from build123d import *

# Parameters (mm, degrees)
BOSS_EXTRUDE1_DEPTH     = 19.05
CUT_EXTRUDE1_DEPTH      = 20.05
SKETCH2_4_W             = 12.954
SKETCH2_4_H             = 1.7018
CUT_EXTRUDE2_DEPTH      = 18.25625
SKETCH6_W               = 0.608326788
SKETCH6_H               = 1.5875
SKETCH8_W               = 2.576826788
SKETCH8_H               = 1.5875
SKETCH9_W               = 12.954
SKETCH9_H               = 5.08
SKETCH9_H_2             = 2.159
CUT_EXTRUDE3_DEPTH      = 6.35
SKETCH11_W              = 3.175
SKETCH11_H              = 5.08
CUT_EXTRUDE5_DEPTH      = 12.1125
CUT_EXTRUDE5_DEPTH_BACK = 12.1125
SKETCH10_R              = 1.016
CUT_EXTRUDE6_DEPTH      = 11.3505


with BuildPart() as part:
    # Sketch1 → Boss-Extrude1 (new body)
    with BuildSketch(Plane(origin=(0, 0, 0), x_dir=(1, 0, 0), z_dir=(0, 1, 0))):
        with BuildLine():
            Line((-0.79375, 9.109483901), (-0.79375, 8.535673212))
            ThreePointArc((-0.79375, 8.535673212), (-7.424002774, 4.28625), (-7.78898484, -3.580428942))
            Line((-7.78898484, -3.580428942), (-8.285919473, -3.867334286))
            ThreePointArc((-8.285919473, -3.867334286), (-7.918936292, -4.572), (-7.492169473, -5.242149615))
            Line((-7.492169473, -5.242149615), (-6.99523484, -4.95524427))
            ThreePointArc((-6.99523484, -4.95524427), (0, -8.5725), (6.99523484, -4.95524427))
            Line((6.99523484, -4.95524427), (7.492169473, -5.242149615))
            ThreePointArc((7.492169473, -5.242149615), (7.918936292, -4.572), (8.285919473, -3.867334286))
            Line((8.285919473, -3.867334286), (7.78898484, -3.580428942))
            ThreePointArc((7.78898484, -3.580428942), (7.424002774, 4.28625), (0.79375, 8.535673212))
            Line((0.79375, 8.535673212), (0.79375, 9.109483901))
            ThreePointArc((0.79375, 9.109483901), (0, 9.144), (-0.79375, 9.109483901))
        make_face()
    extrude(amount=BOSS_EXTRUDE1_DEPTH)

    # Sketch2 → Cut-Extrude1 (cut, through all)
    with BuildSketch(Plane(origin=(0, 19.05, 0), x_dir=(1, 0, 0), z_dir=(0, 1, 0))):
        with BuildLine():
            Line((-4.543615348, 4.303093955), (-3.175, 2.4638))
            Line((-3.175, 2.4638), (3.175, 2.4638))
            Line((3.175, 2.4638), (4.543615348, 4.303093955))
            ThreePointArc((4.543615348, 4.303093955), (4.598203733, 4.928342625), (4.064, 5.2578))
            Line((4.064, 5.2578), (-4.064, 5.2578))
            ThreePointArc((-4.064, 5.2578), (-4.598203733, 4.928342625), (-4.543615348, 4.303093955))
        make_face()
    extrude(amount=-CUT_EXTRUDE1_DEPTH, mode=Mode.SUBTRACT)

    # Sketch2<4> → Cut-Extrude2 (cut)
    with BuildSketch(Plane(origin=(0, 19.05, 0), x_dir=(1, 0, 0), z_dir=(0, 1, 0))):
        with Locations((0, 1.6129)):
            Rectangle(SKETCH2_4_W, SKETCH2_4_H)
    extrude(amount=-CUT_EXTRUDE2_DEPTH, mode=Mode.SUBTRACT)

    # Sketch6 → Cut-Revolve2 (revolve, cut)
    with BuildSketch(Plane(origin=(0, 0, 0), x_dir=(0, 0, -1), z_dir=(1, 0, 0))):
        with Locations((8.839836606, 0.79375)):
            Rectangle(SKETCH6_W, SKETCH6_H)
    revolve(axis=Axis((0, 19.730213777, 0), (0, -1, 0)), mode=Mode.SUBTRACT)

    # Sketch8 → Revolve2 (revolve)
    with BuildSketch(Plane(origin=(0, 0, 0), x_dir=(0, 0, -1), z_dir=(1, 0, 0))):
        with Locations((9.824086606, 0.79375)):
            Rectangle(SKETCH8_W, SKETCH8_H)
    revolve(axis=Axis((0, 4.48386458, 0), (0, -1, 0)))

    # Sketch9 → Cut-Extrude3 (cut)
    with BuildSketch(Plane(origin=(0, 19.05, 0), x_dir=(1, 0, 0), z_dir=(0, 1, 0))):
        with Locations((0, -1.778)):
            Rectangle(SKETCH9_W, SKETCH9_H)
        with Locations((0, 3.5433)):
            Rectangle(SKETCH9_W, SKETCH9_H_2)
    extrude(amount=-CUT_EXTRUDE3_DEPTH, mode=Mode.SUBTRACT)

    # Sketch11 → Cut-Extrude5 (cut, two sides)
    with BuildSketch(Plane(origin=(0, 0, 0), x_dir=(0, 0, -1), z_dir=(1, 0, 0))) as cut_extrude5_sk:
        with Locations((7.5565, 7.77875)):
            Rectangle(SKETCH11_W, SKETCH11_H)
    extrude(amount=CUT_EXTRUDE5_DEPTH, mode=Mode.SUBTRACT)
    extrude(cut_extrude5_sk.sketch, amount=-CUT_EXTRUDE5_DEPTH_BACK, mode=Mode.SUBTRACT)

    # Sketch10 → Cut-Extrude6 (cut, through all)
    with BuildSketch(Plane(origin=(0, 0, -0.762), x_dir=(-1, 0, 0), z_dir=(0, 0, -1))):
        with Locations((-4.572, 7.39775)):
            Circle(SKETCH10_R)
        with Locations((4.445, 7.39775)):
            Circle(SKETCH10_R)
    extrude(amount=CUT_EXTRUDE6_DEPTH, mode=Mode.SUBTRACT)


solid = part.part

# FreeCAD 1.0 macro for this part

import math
import FreeCAD as App
import Part
import Sketcher

V = App.Vector
Q = App.Units.Quantity

doc = App.newDocument("Part")
body = doc.addObject("PartDesign::Body", "Body")

# Sketch on XZ plane
sketch1 = body.newObject("Sketcher::SketchObject", "Sketch")
sketch1.AttachmentSupport = (doc.getObject("XZ_Plane"), [""])
sketch1.MapMode = "FlatFace"
sketch1.addGeometry([
    Part.LineSegment(V(-0.79375, -9.109484, 0), V(-0.79375, -8.535673, 0)),  # 0
    Part.ArcOfCircle(Part.Circle(V(0, 0, 0), V(0, 0, 1), 8.5725), math.radians(155.312775), math.radians(264.687225)),  # 1
    Part.LineSegment(V(-7.788985, 3.580429, 0), V(-8.285919, 3.867334, 0)),  # 2
    Part.ArcOfCircle(Part.Circle(V(0, 0, 0), V(0, 0, 1), 9.144), math.radians(145.020141), math.radians(154.979859)),  # 3
    Part.LineSegment(V(-7.492169, 5.24215, 0), V(-6.995235, 4.955244, 0)),  # 4
    Part.ArcOfCircle(Part.Circle(V(0, 0, 0), V(0, 0, 1), 8.5725), math.radians(35.312775), math.radians(144.687225)),  # 5
    Part.LineSegment(V(6.995235, 4.955244, 0), V(7.492169, 5.24215, 0)),  # 6
    Part.ArcOfCircle(Part.Circle(V(0, 0, 0), V(0, 0, 1), 9.144), math.radians(25.020141), math.radians(34.979859)),  # 7
    Part.LineSegment(V(8.285919, 3.867334, 0), V(7.788985, 3.580429, 0)),  # 8
    Part.ArcOfCircle(Part.Circle(V(0, 0, 0), V(0, 0, 1), 8.5725), math.radians(-84.687225), math.radians(24.687225)),  # 9
    Part.LineSegment(V(0.79375, -8.535673, 0), V(0.79375, -9.109484, 0)),  # 10
    Part.ArcOfCircle(Part.Circle(V(0, 0, 0), V(0, 0, 1), 9.144), math.radians(-94.979859), math.radians(-85.020141)),  # 11
], False)
sketch1.addConstraint([
    Sketcher.Constraint("Coincident", 0, 2, 1, 2),
    Sketcher.Constraint("Coincident", 1, 1, 2, 1),
    Sketcher.Constraint("Coincident", 2, 2, 3, 2),
    Sketcher.Constraint("Coincident", 3, 1, 4, 1),
    Sketcher.Constraint("Coincident", 4, 2, 5, 2),
    Sketcher.Constraint("Coincident", 5, 1, 6, 1),
    Sketcher.Constraint("Coincident", 6, 2, 7, 2),
    Sketcher.Constraint("Coincident", 7, 1, 8, 1),
    Sketcher.Constraint("Coincident", 8, 2, 9, 2),
    Sketcher.Constraint("Coincident", 9, 1, 10, 1),
    Sketcher.Constraint("Coincident", 10, 2, 11, 2),
    Sketcher.Constraint("Coincident", 11, 1, 0, 1),
    Sketcher.Constraint("Vertical", 0),
    Sketcher.Constraint("Vertical", 10),
    Sketcher.Constraint("Coincident", 1, 3, -1, 1),
    Sketcher.Constraint("Coincident", 3, 3, -1, 1),
    Sketcher.Constraint("Coincident", 5, 3, -1, 1),
    Sketcher.Constraint("Coincident", 7, 3, -1, 1),
    Sketcher.Constraint("Coincident", 9, 3, -1, 1),
    Sketcher.Constraint("Coincident", 11, 3, -1, 1),
    Sketcher.Constraint("Equal", 1, 5),
    Sketcher.Constraint("Equal", 3, 7),
    Sketcher.Constraint("Equal", 5, 9),
    Sketcher.Constraint("Equal", 7, 11),
    Sketcher.Constraint("Parallel", 2, 4),
    Sketcher.Constraint("Parallel", 6, 8),
    Sketcher.Constraint("Horizontal", 4, 2, 5, 1),
    Sketcher.Constraint("Horizontal", 3, 1, 6, 2),
    Sketcher.Constraint("Horizontal", 2, 2, 7, 1),
    Sketcher.Constraint("Horizontal", 0, 2, 9, 1),
    Sketcher.Constraint("Equal", 2, 4),
    Sketcher.Constraint("Radius", 3, Q("0.36 in")),
    Sketcher.Constraint("Angle", 2, Q("150 deg")),
    Sketcher.Constraint("Radius", 1, Q("0.3375 in")),
    Sketcher.Constraint("DistanceX", 0, 2, -1, 1, Q("0.03125 in")),
    Sketcher.Constraint("DistanceX", 2, 2, 3, 1, Q("0.03125 in")),
])
pad1 = body.newObject("PartDesign::Pad", "Pad")
pad1.Profile = sketch1
pad1.Length = Q("0.75 in")
pad1.Reversed = True

# Sketch on XZ plane
sketch2 = body.newObject("Sketcher::SketchObject", "Sketch001")
sketch2.AttachmentSupport = (doc.getObject("XZ_Plane"), [""])
sketch2.MapMode = "FlatFace"
sketch2.AttachmentOffset = App.Placement(V(0, 0, -0.75 * 25.4), App.Rotation())
sketch2.addGeometry([
    Part.LineSegment(V(-4.543615, -4.303094, 0), V(-3.175, -2.4638, 0)),  # 0
    Part.LineSegment(V(-3.175, -2.4638, 0), V(3.175, -2.4638, 0)),  # 1
    Part.LineSegment(V(3.175, -2.4638, 0), V(4.543615, -4.303094, 0)),  # 2
    Part.ArcOfCircle(Part.Circle(V(4.064, -4.659975, 0), V(0, 0, 1), 0.597825), math.radians(-90), math.radians(36.65287)),  # 3
    Part.LineSegment(V(4.064, -5.2578, 0), V(-4.064, -5.2578, 0)),  # 4
    Part.ArcOfCircle(Part.Circle(V(-4.064, -4.659975, 0), V(0, 0, 1), 0.597825), math.radians(143.34713), math.radians(270)),  # 5
], False)
sketch2.addConstraint([
    Sketcher.Constraint("Coincident", 0, 2, 1, 1),
    Sketcher.Constraint("Coincident", 1, 2, 2, 1),
    Sketcher.Constraint("Tangent", 2, 2, 3, 2),
    Sketcher.Constraint("Tangent", 3, 1, 4, 1),
    Sketcher.Constraint("Tangent", 4, 2, 5, 2),
    Sketcher.Constraint("Tangent", 5, 1, 0, 1),
    Sketcher.Constraint("Horizontal", 1),
    Sketcher.Constraint("Horizontal", 4),
    Sketcher.Constraint("Equal", 3, 5),
    Sketcher.Constraint("Symmetric", 2, 2, 5, 1, -2),
    Sketcher.Constraint("DistanceX", 1, 1, 1, 2, Q("0.25 in")),
    Sketcher.Constraint("DistanceX", 4, 2, 4, 1, Q("0.32 in")),
    Sketcher.Constraint("DistanceY", 3, 1, 1, 2, Q("0.11 in")),
    Sketcher.Constraint("DistanceY", 0, 2, -1, 1, Q("0.097 in")),
    Sketcher.Constraint("Radius", 3, Q("0.597825 mm")),
])
pocket1 = body.newObject("PartDesign::Pocket", "Pocket")
pocket1.Profile = sketch2
pocket1.Type = "ThroughAll"
pocket1.Reversed = True

# Sketch on XZ plane
sketch3 = body.newObject("Sketcher::SketchObject", "Sketch002")
sketch3.AttachmentSupport = (doc.getObject("XZ_Plane"), [""])
sketch3.MapMode = "FlatFace"
sketch3.AttachmentOffset = App.Placement(V(0, 0, -0.75 * 25.4), App.Rotation())
sketch3.addGeometry([
    Part.LineSegment(V(-6.477, -2.4638, 0), V(-6.477, -0.762, 0)),
    Part.LineSegment(V(-6.477, -0.762, 0), V(6.477, -0.762, 0)),
    Part.LineSegment(V(6.477, -0.762, 0), V(6.477, -2.4638, 0)),
    Part.LineSegment(V(6.477, -2.4638, 0), V(-6.477, -2.4638, 0)),
], False)
sketch3.addConstraint([
    Sketcher.Constraint("Coincident", 0, 2, 1, 1),
    Sketcher.Constraint("Coincident", 1, 2, 2, 1),
    Sketcher.Constraint("Coincident", 2, 2, 3, 1),
    Sketcher.Constraint("Coincident", 3, 2, 0, 1),
    Sketcher.Constraint("Vertical", 0),
    Sketcher.Constraint("Horizontal", 1),
    Sketcher.Constraint("Vertical", 2),
    Sketcher.Constraint("Horizontal", 3),
    Sketcher.Constraint("DistanceX", 1, 1, 1, 2, Q("0.51 in")),
    Sketcher.Constraint("DistanceY", 0, 1, 0, 2, Q("0.067 in")),
    Sketcher.Constraint("DistanceY", 0, 2, -1, 1, Q("0.03 in")),
    Sketcher.Constraint("DistanceX", 0, 2, -1, 1, Q("0.255 in")),
])
pocket2 = body.newObject("PartDesign::Pocket", "Pocket001")
pocket2.Profile = sketch3
pocket2.Length = Q("0.71875 in")
pocket2.Reversed = True

# Sketch on YZ plane
sketch4 = body.newObject("Sketcher::SketchObject", "Sketch003")
sketch4.AttachmentSupport = (doc.getObject("YZ_Plane"), [""])
sketch4.MapMode = "FlatFace"
sketch4.addGeometry([
    Part.LineSegment(V(1.5875, -8.535673, 0), V(0, -8.535673, 0)),
    Part.LineSegment(V(0, -8.535673, 0), V(0, -9.144, 0)),
    Part.LineSegment(V(0, -9.144, 0), V(1.5875, -9.144, 0)),
    Part.LineSegment(V(1.5875, -9.144, 0), V(1.5875, -8.535673, 0)),
], False)
sketch4.addConstraint([
    Sketcher.Constraint("Coincident", 0, 2, 1, 1),
    Sketcher.Constraint("Coincident", 1, 2, 2, 1),
    Sketcher.Constraint("Coincident", 2, 2, 3, 1),
    Sketcher.Constraint("Coincident", 3, 2, 0, 1),
    Sketcher.Constraint("Horizontal", 0),
    Sketcher.Constraint("Vertical", 1),
    Sketcher.Constraint("Horizontal", 2),
    Sketcher.Constraint("Vertical", 3),
    Sketcher.Constraint("PointOnObject", 0, 2, -2),
    Sketcher.Constraint("DistanceX", 0, 2, 0, 1, Q("0.0625 in")),
    Sketcher.Constraint("DistanceY", 1, 2, -1, 1, Q("0.36 in")),
    Sketcher.Constraint("DistanceY", 1, 2, 1, 1, Q("0.608327 mm")),
])
groove = body.newObject("PartDesign::Groove", "Groove")
groove.Profile = sketch4
groove.ReferenceAxis = (sketch4, ["H_Axis"])
groove.Angle = 360

# Sketch on YZ plane
sketch5 = body.newObject("Sketcher::SketchObject", "Sketch004")
sketch5.AttachmentSupport = (doc.getObject("YZ_Plane"), [""])
sketch5.MapMode = "FlatFace"
sketch5.addGeometry([
    Part.LineSegment(V(1.5875, -8.535673, 0), V(0, -8.535673, 0)),
    Part.LineSegment(V(0, -8.535673, 0), V(0, -11.1125, 0)),
    Part.LineSegment(V(0, -11.1125, 0), V(1.5875, -11.1125, 0)),
    Part.LineSegment(V(1.5875, -11.1125, 0), V(1.5875, -8.535673, 0)),
], False)
sketch5.addConstraint([
    Sketcher.Constraint("Coincident", 0, 2, 1, 1),
    Sketcher.Constraint("Coincident", 1, 2, 2, 1),
    Sketcher.Constraint("Coincident", 2, 2, 3, 1),
    Sketcher.Constraint("Coincident", 3, 2, 0, 1),
    Sketcher.Constraint("Horizontal", 0),
    Sketcher.Constraint("Vertical", 1),
    Sketcher.Constraint("Horizontal", 2),
    Sketcher.Constraint("Vertical", 3),
    Sketcher.Constraint("PointOnObject", 0, 2, -2),
    Sketcher.Constraint("DistanceX", 0, 2, 0, 1, Q("0.0625 in")),
    Sketcher.Constraint("DistanceY", 1, 2, -1, 1, Q("0.4375 in")),
    Sketcher.Constraint("DistanceY", 1, 2, 1, 1, Q("2.576827 mm")),
])
revolution = body.newObject("PartDesign::Revolution", "Revolution")
revolution.Profile = sketch5
revolution.ReferenceAxis = (sketch5, ["H_Axis"])
revolution.Angle = 360

# Sketch on XZ plane
sketch6 = body.newObject("Sketcher::SketchObject", "Sketch005")
sketch6.AttachmentSupport = (doc.getObject("XZ_Plane"), [""])
sketch6.MapMode = "FlatFace"
sketch6.AttachmentOffset = App.Placement(V(0, 0, -0.75 * 25.4), App.Rotation())
sketch6.addGeometry([
    Part.LineSegment(V(-6.477, -0.762, 0), V(-6.477, 4.318, 0)),  # 0
    Part.LineSegment(V(-6.477, 4.318, 0), V(6.477, 4.318, 0)),  # 1
    Part.LineSegment(V(6.477, 4.318, 0), V(6.477, -0.762, 0)),  # 2
    Part.LineSegment(V(6.477, -0.762, 0), V(-6.477, -0.762, 0)),  # 3
    Part.LineSegment(V(-6.477, -4.6228, 0), V(-6.477, -2.4638, 0)),  # 4
    Part.LineSegment(V(-6.477, -2.4638, 0), V(6.477, -2.4638, 0)),  # 5
    Part.LineSegment(V(6.477, -2.4638, 0), V(6.477, -4.6228, 0)),  # 6
    Part.LineSegment(V(6.477, -4.6228, 0), V(-6.477, -4.6228, 0)),  # 7
], False)
sketch6.addConstraint([
    Sketcher.Constraint("Coincident", 0, 2, 1, 1),
    Sketcher.Constraint("Coincident", 1, 2, 2, 1),
    Sketcher.Constraint("Coincident", 2, 2, 3, 1),
    Sketcher.Constraint("Coincident", 3, 2, 0, 1),
    Sketcher.Constraint("Coincident", 4, 2, 5, 1),
    Sketcher.Constraint("Coincident", 5, 2, 6, 1),
    Sketcher.Constraint("Coincident", 6, 2, 7, 1),
    Sketcher.Constraint("Coincident", 7, 2, 4, 1),
    Sketcher.Constraint("Vertical", 0),
    Sketcher.Constraint("Horizontal", 1),
    Sketcher.Constraint("Vertical", 2),
    Sketcher.Constraint("Horizontal", 3),
    Sketcher.Constraint("Vertical", 4),
    Sketcher.Constraint("Horizontal", 5),
    Sketcher.Constraint("Vertical", 6),
    Sketcher.Constraint("Horizontal", 7),
    Sketcher.Constraint("Vertical", 3, 2, 4, 2),
    Sketcher.Constraint("Vertical", 2, 2, 5, 2),
    Sketcher.Constraint("DistanceY", 0, 1, 0, 2, Q("0.2 in")),
    Sketcher.Constraint("DistanceX", 1, 1, 1, 2, Q("0.51 in")),
    Sketcher.Constraint("DistanceY", 4, 1, 4, 2, Q("0.085 in")),
    Sketcher.Constraint("DistanceY", -1, 1, 0, 2, Q("0.17 in")),
    Sketcher.Constraint("DistanceX", 0, 2, -1, 1, Q("0.255 in")),
    Sketcher.Constraint("DistanceY", 4, 2, -1, 1, Q("0.097 in")),
])
pocket3 = body.newObject("PartDesign::Pocket", "Pocket002")
pocket3.Profile = sketch6
pocket3.Length = Q("0.25 in")
pocket3.Reversed = True

# Sketch on YZ plane
sketch7 = body.newObject("Sketcher::SketchObject", "Sketch006")
sketch7.AttachmentSupport = (doc.getObject("YZ_Plane"), [""])
sketch7.MapMode = "FlatFace"
sketch7.addGeometry([
    Part.LineSegment(V(10.31875, -5.969, 0), V(5.23875, -5.969, 0)),
    Part.LineSegment(V(5.23875, -5.969, 0), V(5.23875, -9.144, 0)),
    Part.LineSegment(V(5.23875, -9.144, 0), V(10.31875, -9.144, 0)),
    Part.LineSegment(V(10.31875, -9.144, 0), V(10.31875, -5.969, 0)),
], False)
sketch7.addConstraint([
    Sketcher.Constraint("Coincident", 0, 2, 1, 1),
    Sketcher.Constraint("Coincident", 1, 2, 2, 1),
    Sketcher.Constraint("Coincident", 2, 2, 3, 1),
    Sketcher.Constraint("Coincident", 3, 2, 0, 1),
    Sketcher.Constraint("Horizontal", 0),
    Sketcher.Constraint("Vertical", 1),
    Sketcher.Constraint("Horizontal", 2),
    Sketcher.Constraint("Vertical", 3),
    Sketcher.Constraint("DistanceX", 0, 2, 0, 1, Q("0.2 in")),
    Sketcher.Constraint("DistanceY", 1, 2, 1, 1, Q("0.125 in")),
    Sketcher.Constraint("DistanceY", 1, 2, -1, 1, Q("0.36 in")),
    Sketcher.Constraint("DistanceX", -1, 1, 2, 2, Q("0.40625 in")),
])
pocket4 = body.newObject("PartDesign::Pocket", "Pocket003")
pocket4.Profile = sketch7
pocket4.Type = "ThroughAll"
pocket4.Midplane = True

# Sketch on XY plane
sketch8 = body.newObject("Sketcher::SketchObject", "Sketch007")
sketch8.AttachmentSupport = (doc.getObject("XY_Plane"), [""])
sketch8.MapMode = "FlatFace"
sketch8.AttachmentOffset = App.Placement(V(0, 0, -0.03 * 25.4), App.Rotation())
sketch8.addGeometry([
    Part.Circle(V(4.572, 7.39775, 0), V(0, 0, 1), 1.016),
    Part.Circle(V(-4.445, 7.39775, 0), V(0, 0, 1), 1.016),
], False)
sketch8.addConstraint([
    Sketcher.Constraint("Equal", 0, 1),
    Sketcher.Constraint("Horizontal", 0, 3, 1, 3),
    Sketcher.Constraint("Diameter", 0, Q("0.08 in")),
    Sketcher.Constraint("DistanceX", -1, 1, 0, 3, Q("0.18 in")),
    Sketcher.Constraint("DistanceX", 1, 3, -1, 1, Q("0.175 in")),
    Sketcher.Constraint("DistanceY", -1, 1, 0, 3, Q("7.39775 mm")),
])
pocket5 = body.newObject("PartDesign::Pocket", "Pocket004")
pocket5.Profile = sketch8
pocket5.Type = "ThroughAll"

doc.recompute()
